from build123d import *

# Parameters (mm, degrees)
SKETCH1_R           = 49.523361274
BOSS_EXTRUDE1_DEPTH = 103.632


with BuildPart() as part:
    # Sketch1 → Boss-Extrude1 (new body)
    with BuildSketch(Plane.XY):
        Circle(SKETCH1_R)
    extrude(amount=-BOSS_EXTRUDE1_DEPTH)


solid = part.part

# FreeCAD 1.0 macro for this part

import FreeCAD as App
import Part
import Sketcher

V = App.Vector
Q = App.Units.Quantity

doc = App.newDocument("Part")
body = doc.addObject("PartDesign::Body", "Body")

# Sketch on XY plane
sketch1 = body.newObject("Sketcher::SketchObject", "Sketch")
sketch1.AttachmentSupport = (doc.getObject("XY_Plane"), [""])
sketch1.MapMode = "FlatFace"
sketch1.addGeometry(Part.Circle(V(0, 0, 0), V(0, 0, 1), 50), False)
sketch1.addConstraint(Sketcher.Constraint("Coincident", 0, 3, -1, 1))
sketch1.addConstraint(Sketcher.Constraint("Diameter", 0, Q("99.046723 mm")))
pad1 = body.newObject("PartDesign::Pad", "Pad")
pad1.Profile = sketch1
pad1.Length = Q("4.08 in")
pad1.Reversed = True

doc.recompute()
